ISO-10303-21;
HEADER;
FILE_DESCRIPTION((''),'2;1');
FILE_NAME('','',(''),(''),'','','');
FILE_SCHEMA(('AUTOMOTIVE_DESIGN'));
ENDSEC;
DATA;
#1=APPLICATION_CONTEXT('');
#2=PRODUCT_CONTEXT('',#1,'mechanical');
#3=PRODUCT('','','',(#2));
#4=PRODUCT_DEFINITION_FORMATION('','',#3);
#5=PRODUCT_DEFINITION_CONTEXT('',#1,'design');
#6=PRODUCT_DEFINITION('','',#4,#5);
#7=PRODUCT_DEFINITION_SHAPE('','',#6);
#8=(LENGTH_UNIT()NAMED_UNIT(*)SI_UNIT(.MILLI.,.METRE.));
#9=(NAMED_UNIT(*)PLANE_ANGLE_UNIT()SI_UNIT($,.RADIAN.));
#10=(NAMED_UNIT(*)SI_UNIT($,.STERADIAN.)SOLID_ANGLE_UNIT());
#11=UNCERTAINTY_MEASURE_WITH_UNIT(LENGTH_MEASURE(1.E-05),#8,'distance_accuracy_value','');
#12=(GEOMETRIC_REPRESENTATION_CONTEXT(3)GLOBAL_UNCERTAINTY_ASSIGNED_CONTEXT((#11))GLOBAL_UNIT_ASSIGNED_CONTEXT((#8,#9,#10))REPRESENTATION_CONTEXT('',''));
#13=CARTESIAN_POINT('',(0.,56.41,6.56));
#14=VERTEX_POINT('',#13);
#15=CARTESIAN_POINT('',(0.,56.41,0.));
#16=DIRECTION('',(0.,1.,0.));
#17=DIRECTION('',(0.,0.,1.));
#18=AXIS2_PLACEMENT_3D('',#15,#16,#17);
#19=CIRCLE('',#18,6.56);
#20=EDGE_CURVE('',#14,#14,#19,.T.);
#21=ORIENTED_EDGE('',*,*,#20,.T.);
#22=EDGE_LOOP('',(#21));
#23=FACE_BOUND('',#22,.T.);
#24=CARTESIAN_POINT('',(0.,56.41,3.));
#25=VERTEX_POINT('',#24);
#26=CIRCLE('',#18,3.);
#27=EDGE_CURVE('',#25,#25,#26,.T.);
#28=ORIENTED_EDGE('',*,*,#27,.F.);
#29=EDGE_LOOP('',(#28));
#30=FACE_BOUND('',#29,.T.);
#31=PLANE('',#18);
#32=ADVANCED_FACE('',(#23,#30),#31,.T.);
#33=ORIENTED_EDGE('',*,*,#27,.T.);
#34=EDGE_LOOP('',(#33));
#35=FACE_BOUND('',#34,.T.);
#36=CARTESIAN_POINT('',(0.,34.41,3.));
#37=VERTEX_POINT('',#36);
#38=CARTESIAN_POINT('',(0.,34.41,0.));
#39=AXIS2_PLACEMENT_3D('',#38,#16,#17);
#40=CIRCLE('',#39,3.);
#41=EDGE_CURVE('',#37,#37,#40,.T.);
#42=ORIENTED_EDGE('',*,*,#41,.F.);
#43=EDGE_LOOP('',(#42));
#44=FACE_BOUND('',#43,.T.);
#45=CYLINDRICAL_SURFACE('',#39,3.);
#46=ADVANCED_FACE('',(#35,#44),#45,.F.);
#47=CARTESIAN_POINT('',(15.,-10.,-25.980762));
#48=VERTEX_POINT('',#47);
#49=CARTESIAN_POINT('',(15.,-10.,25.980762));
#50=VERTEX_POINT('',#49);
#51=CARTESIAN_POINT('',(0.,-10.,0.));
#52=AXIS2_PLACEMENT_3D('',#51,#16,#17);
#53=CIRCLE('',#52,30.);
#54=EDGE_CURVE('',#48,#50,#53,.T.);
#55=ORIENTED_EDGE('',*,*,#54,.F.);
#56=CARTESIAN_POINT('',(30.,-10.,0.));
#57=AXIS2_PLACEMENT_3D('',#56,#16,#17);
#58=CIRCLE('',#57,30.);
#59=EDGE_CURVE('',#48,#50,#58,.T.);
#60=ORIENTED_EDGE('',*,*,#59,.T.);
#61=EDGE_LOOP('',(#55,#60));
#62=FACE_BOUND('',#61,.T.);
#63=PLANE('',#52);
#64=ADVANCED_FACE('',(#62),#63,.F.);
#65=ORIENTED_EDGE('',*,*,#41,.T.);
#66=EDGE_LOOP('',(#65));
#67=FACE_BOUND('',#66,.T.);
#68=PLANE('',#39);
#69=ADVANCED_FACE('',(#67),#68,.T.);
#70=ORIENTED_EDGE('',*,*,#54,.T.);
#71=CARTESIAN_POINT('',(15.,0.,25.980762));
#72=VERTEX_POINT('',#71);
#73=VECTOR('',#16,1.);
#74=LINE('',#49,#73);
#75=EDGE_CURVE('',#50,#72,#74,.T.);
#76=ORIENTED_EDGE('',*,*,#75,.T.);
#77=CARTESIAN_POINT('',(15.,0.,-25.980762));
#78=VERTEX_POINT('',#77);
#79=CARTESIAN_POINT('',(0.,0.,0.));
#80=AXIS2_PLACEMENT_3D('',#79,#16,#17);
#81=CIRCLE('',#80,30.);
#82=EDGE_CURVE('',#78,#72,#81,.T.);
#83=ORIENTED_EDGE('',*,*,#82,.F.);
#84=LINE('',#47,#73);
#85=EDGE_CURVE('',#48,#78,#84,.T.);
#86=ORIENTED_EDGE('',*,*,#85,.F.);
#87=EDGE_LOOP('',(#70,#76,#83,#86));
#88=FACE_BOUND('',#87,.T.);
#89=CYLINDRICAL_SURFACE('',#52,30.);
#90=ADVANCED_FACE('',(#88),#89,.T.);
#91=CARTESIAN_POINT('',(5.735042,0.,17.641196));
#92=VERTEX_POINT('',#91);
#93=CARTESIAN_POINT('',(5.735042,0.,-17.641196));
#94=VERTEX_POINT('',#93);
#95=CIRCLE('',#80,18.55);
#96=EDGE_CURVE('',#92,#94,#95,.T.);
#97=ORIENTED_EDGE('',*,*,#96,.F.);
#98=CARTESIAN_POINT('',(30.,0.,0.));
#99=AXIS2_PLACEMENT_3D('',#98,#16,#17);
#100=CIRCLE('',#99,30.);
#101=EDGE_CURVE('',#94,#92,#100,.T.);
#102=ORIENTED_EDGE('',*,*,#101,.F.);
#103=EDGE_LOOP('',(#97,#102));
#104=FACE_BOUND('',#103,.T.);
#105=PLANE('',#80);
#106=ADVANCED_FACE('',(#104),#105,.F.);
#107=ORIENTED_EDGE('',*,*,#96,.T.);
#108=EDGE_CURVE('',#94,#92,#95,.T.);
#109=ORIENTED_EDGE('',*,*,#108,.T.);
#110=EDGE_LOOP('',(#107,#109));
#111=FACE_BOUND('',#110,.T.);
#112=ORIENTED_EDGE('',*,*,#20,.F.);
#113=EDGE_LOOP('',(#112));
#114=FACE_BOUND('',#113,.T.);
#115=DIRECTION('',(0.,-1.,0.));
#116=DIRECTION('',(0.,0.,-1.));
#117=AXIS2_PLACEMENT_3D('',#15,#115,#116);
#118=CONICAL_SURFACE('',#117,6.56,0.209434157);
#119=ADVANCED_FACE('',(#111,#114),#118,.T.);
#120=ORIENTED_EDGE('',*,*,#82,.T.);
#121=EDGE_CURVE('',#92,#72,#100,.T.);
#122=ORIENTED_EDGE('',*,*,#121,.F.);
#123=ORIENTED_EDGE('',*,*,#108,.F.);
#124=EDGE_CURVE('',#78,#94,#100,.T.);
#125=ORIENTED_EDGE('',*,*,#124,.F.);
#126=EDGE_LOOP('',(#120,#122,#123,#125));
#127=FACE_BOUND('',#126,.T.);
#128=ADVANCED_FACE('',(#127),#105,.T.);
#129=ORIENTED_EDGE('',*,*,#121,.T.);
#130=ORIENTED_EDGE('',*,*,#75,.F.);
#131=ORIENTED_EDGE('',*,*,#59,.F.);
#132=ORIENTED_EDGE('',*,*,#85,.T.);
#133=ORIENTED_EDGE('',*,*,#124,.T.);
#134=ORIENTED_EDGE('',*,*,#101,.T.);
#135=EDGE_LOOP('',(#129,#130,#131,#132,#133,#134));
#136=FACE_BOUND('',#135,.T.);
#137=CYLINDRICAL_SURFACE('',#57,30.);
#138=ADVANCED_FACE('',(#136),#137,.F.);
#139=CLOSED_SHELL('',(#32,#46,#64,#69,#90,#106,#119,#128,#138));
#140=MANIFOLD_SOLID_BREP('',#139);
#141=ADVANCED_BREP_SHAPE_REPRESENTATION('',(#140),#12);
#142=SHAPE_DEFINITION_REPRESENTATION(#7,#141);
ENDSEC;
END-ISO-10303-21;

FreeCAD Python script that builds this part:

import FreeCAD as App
import Part
import Sketcher
from FreeCAD import Vector
Q = App.Units.Quantity

doc = App.newDocument("Part")
body = doc.addObject("PartDesign::Body", "Body")

# Sketch on XZ plane
sketch1 = body.newObject("Sketcher::SketchObject", "Sketch")
sketch1.AttachmentSupport = (doc.getObject("XZ_Plane"), [""])
sketch1.MapMode = "FlatFace"
sketch1.AttachmentOffset = App.Placement(Vector(0, 0, -56.41), App.Rotation())
sketch1.addGeometry(Part.Circle(Vector(0, 0, 0), Vector(0, 0, 1), 7), False)
sketch1.addConstraint([
    Sketcher.Constraint("Coincident", 0, 3, -1, 1),
    Sketcher.Constraint("Diameter", 0, Q("13.12 mm")),
])

# Sketch on XZ plane
sketch2 = body.newObject("Sketcher::SketchObject", "Sketch001")
sketch2.AttachmentSupport = (doc.getObject("XZ_Plane"), [""])
sketch2.MapMode = "FlatFace"
sketch2.addGeometry(Part.Circle(Vector(0, 0, 0), Vector(0, 0, 1), 19), False)
sketch2.addConstraint([
    Sketcher.Constraint("Coincident", 0, 3, -1, 1),
    Sketcher.Constraint("Diameter", 0, Q("37.1 mm")),
])

additiveloft = body.newObject("PartDesign::AdditiveLoft", "AdditiveLoft")
additiveloft.Profile = sketch1
additiveloft.Sections = [sketch2]

# Sketch on XZ plane
sketch3 = body.newObject("Sketcher::SketchObject", "Sketch002")
sketch3.AttachmentSupport = (doc.getObject("XZ_Plane"), [""])
sketch3.MapMode = "FlatFace"
sketch3.addGeometry(Part.Circle(Vector(0, 0, 0), Vector(0, 0, 1), 30), False)
sketch3.addConstraint([
    Sketcher.Constraint("Coincident", 0, 3, -1, 1),
    Sketcher.Constraint("Diameter", 0, Q("60 mm")),
])
pad1 = body.newObject("PartDesign::Pad", "Pad")
pad1.Profile = sketch3
pad1.Length = 10

# Sketch on XZ plane
sketch4 = body.newObject("Sketcher::SketchObject", "Sketch003")
sketch4.AttachmentSupport = (doc.getObject("XZ_Plane"), [""])
sketch4.MapMode = "FlatFace"
sketch4.addGeometry(Part.Circle(Vector(30, 0, 0), Vector(0, 0, 1), 30), False)
sketch4.addConstraint([
    Sketcher.Constraint("PointOnObject", 0, 3, -1),
    Sketcher.Constraint("Diameter", 0, Q("60 mm")),
    Sketcher.Constraint("DistanceX", -1, 1, 0, 3, Q("30 mm")),
])
pocket1 = body.newObject("PartDesign::Pocket", "Pocket")
pocket1.Profile = sketch4
pocket1.Length = 10
pocket1.Reversed = True

# Sketch on XZ plane
sketch5 = body.newObject("Sketcher::SketchObject", "Sketch004")
sketch5.AttachmentSupport = (doc.getObject("XZ_Plane"), [""])
sketch5.MapMode = "FlatFace"
sketch5.AttachmentOffset = App.Placement(Vector(0, 0, -56.41), App.Rotation())
sketch5.addGeometry(Part.Circle(Vector(0, 0, 0), Vector(0, 0, 1), 3), False)
sketch5.addConstraint([
    Sketcher.Constraint("Coincident", 0, 3, -1, 1),
    Sketcher.Constraint("Diameter", 0, Q("6 mm")),
])
pocket2 = body.newObject("PartDesign::Pocket", "Pocket001")
pocket2.Profile = sketch5
pocket2.Length = 22
pocket2.Reversed = True

doc.recompute()
